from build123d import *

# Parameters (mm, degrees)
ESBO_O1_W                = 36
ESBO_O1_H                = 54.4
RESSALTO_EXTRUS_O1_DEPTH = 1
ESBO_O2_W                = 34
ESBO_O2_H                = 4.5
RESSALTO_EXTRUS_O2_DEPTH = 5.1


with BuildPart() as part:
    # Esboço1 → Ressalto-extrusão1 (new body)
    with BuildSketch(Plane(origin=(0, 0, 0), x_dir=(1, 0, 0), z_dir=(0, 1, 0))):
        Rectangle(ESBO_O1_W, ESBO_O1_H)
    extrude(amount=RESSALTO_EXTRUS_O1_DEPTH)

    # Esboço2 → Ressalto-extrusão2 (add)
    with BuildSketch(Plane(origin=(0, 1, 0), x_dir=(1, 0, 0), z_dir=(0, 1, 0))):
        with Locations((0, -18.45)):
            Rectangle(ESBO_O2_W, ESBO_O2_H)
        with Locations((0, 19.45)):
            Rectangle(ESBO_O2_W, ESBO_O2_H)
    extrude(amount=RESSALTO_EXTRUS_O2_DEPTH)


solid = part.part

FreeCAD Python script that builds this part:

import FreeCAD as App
import Part
import Sketcher
from FreeCAD import Vector
Q = App.Units.Quantity


def add_polygon(sketch, points):
    """Adds a closed chain of lines whose ends are joined by coincident constraints."""
    first, n = sketch.GeometryCount, len(points)
    for a, b in zip(points, points[1:] + points[:1]):
        sketch.addGeometry(Part.LineSegment(App.Vector(*a, 0), App.Vector(*b, 0)), False)
    for i in range(n):
        sketch.addConstraint(Sketcher.Constraint("Coincident", first + i, 2, first + (i + 1) % n, 1))

doc = App.newDocument("Part")
body = doc.addObject("PartDesign::Body", "Body")

# Sketch on XZ plane
sketch1 = body.newObject("Sketcher::SketchObject", "Sketch")
sketch1.AttachmentSupport = (doc.getObject("XZ_Plane"), [""])
sketch1.MapMode = "FlatFace"
add_polygon(sketch1, [(-18, -27), (-18, 27), (18, 27), (18, -27)])  # lines 0-3
sketch1.addConstraint(Sketcher.Constraint("Vertical", 0))
sketch1.addConstraint(Sketcher.Constraint("Horizontal", 1))
sketch1.addConstraint(Sketcher.Constraint("Vertical", 2))
sketch1.addConstraint(Sketcher.Constraint("Horizontal", 3))
sketch1.addConstraint(Sketcher.Constraint("Symmetric", 0, 2, 2, 2, -1, 1))
sketch1.addConstraint(Sketcher.Constraint("DistanceX", 1, 1, 1, 2, Q("36 mm")))
sketch1.addConstraint(Sketcher.Constraint("DistanceY", 0, 1, 0, 2, Q("54.4 mm")))
pad1 = body.newObject("PartDesign::Pad", "Pad")
pad1.Profile = sketch1
pad1.Length = 1
pad1.Reversed = True

# Sketch on XZ plane
sketch2 = body.newObject("Sketcher::SketchObject", "Sketch001")
sketch2.AttachmentSupport = (doc.getObject("XZ_Plane"), [""])
sketch2.MapMode = "FlatFace"
sketch2.AttachmentOffset = App.Placement(Vector(0, 0, -1), App.Rotation())
add_polygon(sketch2, [(-17, 16.2), (-17, 20.7), (17, 20.7), (17, 16.2)])  # lines 0-3
add_polygon(sketch2, [(-17, -21.7), (-17, -17.2), (17, -17.2), (17, -21.7)])  # lines 4-7
sketch2.addConstraint(Sketcher.Constraint("Vertical", 0))
sketch2.addConstraint(Sketcher.Constraint("Horizontal", 1))
sketch2.addConstraint(Sketcher.Constraint("Vertical", 2))
sketch2.addConstraint(Sketcher.Constraint("Horizontal", 3))
sketch2.addConstraint(Sketcher.Constraint("Vertical", 4))
sketch2.addConstraint(Sketcher.Constraint("Horizontal", 5))
sketch2.addConstraint(Sketcher.Constraint("Vertical", 6))
sketch2.addConstraint(Sketcher.Constraint("Horizontal", 7))
sketch2.addConstraint(Sketcher.Constraint("Vertical", 3, 2, 4, 2))
sketch2.addConstraint(Sketcher.Constraint("Vertical", 2, 2, 5, 2))
sketch2.addConstraint(Sketcher.Constraint("Equal", 2, 4))
sketch2.addConstraint(Sketcher.Constraint("DistanceX", 1, 1, 1, 2, Q("34 mm")))
sketch2.addConstraint(Sketcher.Constraint("DistanceY", 0, 1, 0, 2, Q("4.5 mm")))
sketch2.addConstraint(Sketcher.Constraint("DistanceX", 0, 2, -1, 1, Q("17 mm")))
sketch2.addConstraint(Sketcher.Constraint("DistanceY", -1, 1, 0, 2, Q("20.7 mm")))
sketch2.addConstraint(Sketcher.Constraint("DistanceY", 4, 2, -1, 1, Q("17.2 mm")))
pad2 = body.newObject("PartDesign::Pad", "Pad001")
pad2.Profile = sketch2
pad2.Length = 5.1
pad2.Reversed = True

doc.recompute()
